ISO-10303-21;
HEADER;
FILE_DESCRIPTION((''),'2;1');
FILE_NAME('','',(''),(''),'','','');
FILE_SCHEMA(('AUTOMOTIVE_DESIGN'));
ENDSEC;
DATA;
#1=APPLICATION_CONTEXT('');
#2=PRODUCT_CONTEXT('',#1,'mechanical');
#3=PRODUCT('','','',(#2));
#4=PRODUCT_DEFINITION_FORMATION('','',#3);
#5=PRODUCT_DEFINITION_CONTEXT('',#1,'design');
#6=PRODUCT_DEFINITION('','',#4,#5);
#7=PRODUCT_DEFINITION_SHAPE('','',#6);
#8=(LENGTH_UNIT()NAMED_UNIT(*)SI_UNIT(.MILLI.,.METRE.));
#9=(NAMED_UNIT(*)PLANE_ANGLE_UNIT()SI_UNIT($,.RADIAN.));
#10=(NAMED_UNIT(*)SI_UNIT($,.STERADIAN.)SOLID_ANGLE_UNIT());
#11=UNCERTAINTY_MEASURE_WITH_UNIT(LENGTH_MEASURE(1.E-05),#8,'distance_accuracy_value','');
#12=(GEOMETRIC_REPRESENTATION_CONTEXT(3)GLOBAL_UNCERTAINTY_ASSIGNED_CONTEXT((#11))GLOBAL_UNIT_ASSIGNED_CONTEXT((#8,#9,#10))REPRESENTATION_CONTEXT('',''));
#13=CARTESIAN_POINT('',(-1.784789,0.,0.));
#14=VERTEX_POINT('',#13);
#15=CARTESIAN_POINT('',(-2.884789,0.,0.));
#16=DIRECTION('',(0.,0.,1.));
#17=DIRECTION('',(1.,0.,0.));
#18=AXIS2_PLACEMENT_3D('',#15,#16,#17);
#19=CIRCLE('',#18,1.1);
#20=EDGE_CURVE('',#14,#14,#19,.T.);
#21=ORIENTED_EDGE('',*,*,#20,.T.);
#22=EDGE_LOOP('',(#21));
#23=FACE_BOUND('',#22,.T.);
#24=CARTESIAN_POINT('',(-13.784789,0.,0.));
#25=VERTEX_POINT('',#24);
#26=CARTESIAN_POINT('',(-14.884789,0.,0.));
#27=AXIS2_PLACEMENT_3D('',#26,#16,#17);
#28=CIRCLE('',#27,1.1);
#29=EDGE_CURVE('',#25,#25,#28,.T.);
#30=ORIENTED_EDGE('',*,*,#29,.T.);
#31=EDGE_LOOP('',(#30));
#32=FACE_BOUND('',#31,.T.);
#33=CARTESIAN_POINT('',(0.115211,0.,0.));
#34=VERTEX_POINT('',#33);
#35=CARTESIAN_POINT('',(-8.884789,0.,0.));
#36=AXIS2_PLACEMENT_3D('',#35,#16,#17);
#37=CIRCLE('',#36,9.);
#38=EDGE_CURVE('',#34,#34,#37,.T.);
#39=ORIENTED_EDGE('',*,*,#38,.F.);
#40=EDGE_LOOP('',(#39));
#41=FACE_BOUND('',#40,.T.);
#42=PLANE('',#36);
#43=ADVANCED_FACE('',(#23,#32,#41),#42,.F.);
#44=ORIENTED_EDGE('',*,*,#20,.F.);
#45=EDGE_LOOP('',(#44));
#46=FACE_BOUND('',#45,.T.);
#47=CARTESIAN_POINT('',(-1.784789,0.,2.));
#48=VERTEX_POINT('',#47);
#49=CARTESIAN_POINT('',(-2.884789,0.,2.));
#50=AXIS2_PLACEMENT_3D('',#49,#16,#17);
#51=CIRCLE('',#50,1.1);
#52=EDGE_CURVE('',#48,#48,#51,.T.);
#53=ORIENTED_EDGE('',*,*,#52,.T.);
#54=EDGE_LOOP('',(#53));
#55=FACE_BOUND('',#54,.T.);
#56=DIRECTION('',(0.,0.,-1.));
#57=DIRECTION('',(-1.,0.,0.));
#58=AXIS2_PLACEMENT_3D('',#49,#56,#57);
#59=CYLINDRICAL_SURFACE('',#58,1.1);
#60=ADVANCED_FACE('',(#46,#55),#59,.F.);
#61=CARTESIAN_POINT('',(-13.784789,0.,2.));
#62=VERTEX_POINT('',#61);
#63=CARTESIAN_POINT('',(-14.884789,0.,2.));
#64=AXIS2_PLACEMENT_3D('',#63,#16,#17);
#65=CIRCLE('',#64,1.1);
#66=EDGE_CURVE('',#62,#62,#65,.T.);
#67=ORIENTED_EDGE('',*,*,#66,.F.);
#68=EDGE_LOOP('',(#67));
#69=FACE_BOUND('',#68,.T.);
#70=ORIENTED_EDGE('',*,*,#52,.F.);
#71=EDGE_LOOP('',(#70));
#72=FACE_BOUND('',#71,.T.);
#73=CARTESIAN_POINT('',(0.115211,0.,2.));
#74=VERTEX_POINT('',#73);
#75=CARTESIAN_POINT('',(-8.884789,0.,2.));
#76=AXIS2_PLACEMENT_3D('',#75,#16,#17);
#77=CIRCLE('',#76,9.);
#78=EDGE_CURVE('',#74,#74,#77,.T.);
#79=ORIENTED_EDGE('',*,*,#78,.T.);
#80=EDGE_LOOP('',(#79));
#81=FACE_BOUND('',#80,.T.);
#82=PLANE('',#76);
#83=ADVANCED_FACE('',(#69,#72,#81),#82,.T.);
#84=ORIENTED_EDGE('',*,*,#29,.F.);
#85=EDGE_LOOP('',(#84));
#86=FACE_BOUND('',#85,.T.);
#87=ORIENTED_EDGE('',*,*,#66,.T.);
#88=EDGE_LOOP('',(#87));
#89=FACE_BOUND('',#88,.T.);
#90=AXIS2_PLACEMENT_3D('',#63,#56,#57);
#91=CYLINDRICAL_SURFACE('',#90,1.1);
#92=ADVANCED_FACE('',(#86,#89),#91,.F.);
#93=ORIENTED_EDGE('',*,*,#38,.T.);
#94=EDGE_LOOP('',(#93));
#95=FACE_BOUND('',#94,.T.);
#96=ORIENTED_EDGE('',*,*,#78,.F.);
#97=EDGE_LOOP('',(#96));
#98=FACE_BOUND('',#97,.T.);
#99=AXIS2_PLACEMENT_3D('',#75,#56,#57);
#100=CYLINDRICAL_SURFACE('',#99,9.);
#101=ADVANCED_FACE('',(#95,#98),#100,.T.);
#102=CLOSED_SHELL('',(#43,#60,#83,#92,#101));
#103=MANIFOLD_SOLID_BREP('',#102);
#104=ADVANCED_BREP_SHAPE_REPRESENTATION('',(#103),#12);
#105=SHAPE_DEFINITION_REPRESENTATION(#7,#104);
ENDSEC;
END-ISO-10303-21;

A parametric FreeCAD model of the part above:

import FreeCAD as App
import Part
import Sketcher

doc = App.newDocument("Part")
body = doc.addObject("PartDesign::Body", "Body")

# Sketch on XY plane
sketch1 = body.newObject("Sketcher::SketchObject", "Sketch")
sketch1.AttachmentSupport = (doc.getObject("XY_Plane"), [""])
sketch1.MapMode = "FlatFace"
sketch1.addGeometry([
    Part.Circle(App.Vector(-8.9, 0, 0), App.Vector(0, 0, 1), 9),
    Part.Circle(App.Vector(-14.9, 0, 0), App.Vector(0, 0, 1), 1.1),
    Part.Circle(App.Vector(-2.9, 0, 0), App.Vector(0, 0, 1), 1.1),
], False)
sketch1.addConstraint([
    Sketcher.Constraint("Equal", 1, 2),
    Sketcher.Constraint("PointOnObject", 0, 3, -1),
    Sketcher.Constraint("PointOnObject", 1, 3, -1),
    Sketcher.Constraint("PointOnObject", 2, 3, -1),
    Sketcher.Constraint("Diameter", 0, 18.0),
    Sketcher.Constraint("Diameter", 1, 2.2),
    Sketcher.Constraint("DistanceX", 1, 3, 0, 3, 6.0),
    Sketcher.Constraint("DistanceX", 0, 3, 2, 3, 6.0),
    Sketcher.Constraint("DistanceX", 0, 3, -1, 1, 8.884789),
])
pad1 = body.newObject("PartDesign::Pad", "Pad")
pad1.Profile = sketch1
pad1.Length = 2

doc.recompute()
